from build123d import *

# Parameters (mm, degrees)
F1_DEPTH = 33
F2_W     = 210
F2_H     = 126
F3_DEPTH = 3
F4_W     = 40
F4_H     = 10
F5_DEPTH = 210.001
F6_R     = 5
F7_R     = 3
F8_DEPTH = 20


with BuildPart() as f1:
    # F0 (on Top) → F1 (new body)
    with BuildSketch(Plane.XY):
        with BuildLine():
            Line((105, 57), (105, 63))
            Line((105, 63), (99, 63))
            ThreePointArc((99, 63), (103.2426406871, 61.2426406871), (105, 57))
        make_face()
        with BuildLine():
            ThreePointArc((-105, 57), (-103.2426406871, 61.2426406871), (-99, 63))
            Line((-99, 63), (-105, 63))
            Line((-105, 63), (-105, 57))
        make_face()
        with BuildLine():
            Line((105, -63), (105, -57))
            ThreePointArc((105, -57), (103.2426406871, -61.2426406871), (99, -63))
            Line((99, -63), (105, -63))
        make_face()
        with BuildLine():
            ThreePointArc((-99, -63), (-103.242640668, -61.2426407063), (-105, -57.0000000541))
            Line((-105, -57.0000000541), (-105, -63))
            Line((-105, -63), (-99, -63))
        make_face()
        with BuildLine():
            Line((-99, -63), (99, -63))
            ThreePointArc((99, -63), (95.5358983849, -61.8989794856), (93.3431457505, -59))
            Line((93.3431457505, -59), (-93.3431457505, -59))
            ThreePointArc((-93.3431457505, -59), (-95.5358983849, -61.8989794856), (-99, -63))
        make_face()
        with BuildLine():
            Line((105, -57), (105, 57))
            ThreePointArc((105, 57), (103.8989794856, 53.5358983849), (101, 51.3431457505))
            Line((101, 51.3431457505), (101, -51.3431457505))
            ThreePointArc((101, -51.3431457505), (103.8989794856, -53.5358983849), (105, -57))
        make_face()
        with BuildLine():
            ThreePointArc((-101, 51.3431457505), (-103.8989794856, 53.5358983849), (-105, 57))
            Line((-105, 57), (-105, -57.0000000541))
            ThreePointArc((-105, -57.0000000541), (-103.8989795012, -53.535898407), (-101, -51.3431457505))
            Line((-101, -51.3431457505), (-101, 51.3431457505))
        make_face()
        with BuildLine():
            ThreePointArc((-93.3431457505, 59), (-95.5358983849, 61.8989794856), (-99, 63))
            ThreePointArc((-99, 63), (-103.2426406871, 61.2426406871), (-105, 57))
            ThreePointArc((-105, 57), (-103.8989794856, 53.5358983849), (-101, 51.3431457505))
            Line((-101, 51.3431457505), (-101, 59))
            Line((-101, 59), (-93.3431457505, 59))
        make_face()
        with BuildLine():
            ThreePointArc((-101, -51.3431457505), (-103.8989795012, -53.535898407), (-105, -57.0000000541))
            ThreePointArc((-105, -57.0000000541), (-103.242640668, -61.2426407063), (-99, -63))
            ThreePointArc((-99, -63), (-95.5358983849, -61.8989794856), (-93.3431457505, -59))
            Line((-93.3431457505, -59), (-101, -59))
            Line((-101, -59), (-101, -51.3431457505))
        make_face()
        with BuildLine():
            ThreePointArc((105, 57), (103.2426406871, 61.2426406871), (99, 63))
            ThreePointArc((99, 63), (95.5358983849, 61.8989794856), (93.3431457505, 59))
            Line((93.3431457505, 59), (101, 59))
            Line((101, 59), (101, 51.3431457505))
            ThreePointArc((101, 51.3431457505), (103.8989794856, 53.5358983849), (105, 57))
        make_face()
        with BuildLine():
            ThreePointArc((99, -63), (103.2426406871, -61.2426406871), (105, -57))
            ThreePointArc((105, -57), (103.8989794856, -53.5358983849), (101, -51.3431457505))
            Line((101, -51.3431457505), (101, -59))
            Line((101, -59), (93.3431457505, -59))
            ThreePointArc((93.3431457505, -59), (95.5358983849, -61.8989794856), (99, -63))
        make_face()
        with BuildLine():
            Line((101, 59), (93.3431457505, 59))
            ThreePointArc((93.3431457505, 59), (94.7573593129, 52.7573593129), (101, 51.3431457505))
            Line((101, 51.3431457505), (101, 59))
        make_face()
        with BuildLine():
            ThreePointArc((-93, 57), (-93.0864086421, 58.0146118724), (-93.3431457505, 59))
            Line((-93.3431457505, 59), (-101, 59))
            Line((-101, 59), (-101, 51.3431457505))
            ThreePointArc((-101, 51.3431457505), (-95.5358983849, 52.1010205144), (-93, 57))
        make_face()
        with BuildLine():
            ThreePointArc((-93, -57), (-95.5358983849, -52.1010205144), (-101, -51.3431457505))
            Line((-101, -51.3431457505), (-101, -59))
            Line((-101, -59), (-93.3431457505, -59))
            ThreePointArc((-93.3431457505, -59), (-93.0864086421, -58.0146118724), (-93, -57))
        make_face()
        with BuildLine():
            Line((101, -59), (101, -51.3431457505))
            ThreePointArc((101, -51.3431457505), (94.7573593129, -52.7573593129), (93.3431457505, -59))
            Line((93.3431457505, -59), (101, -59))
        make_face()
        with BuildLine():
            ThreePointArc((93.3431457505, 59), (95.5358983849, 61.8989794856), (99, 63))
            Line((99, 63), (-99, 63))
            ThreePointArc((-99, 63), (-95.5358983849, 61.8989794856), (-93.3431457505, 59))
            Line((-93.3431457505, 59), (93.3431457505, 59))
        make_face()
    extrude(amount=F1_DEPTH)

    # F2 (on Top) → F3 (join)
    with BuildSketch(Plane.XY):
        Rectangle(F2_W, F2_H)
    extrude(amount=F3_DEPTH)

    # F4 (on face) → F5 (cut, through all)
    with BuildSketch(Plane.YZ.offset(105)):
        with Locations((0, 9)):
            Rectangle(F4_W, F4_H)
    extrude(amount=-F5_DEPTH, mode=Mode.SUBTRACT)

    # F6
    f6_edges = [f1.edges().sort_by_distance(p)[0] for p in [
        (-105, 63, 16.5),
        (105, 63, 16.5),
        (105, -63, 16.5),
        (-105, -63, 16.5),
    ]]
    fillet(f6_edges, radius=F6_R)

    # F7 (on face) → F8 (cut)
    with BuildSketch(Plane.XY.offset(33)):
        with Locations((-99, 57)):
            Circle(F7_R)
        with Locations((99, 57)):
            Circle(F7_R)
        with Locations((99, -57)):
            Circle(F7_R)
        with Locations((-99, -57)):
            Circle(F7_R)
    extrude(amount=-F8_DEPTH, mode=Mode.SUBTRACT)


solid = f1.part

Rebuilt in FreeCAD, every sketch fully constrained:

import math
import FreeCAD as App
import Part
import Sketcher
Q = App.Units.Quantity


def edges_at(feature, points):
    """Names of the edges that pass closest to the given points."""
    edges = feature.Shape.Edges
    near = lambda p: min(range(len(edges)), key=lambda i: edges[i].distToShape(Part.Vertex(*p))[0])
    return sorted({f"Edge{near(p) + 1}" for p in points})

doc = App.newDocument("Part")
params = doc.addObject("Spreadsheet::Sheet", "Params")
for row, (alias, value) in enumerate([
    ("sketch1_radius", "6 mm"),
    ("sketch1_width", "210 mm"),
    ("sketch1_height", "126 mm"),
    ("pad1_length", "33 mm"),
    ("sketch2_width", "210 mm"),
    ("sketch2_height", "126 mm"),
    ("pad2_length", "3 mm"),
    ("sketch3_width", "40 mm"),
    ("sketch3_height", "10 mm"),
    ("fillet_radius", "5 mm"),
    ("sketch4_diameter", "6 mm"),
    ("pocket2_length", "20 mm"),
], start=1):
    params.set(f"A{row}", alias)
    params.set(f"B{row}", "=" + value)
    params.setAlias(f"B{row}", alias)

body = doc.addObject("PartDesign::Body", "Body")

# Sketch on XY plane
sketch1 = body.newObject("Sketcher::SketchObject", "Sketch")
sketch1.AttachmentSupport = (doc.getObject("XY_Plane"), [""])
sketch1.MapMode = "FlatFace"
sketch1.addGeometry([
    Part.LineSegment(App.Vector(105, 63, 0), App.Vector(-105, 63, 0)),  # 0
    Part.LineSegment(App.Vector(-105, 63, 0), App.Vector(-105, -63, 0)),  # 1
    Part.LineSegment(App.Vector(-105, -63, 0), App.Vector(105, -63, 0)),  # 2
    Part.LineSegment(App.Vector(105, -63, 0), App.Vector(105, 63, 0)),  # 3
    Part.ArcOfCircle(Part.Circle(App.Vector(99, 57, 0), App.Vector(0, 0, 1), 6), math.radians(160.528779), math.radians(289.471221)),  # 4
    Part.LineSegment(App.Vector(101, 51.343146, 0), App.Vector(101, -51.343146, 0)),  # 5
    Part.ArcOfCircle(Part.Circle(App.Vector(99, -57, 0), App.Vector(0, 0, 1), 6), math.radians(70.528779), math.radians(199.471221)),  # 6
    Part.LineSegment(App.Vector(93.343146, -59, 0), App.Vector(-93.343146, -59, 0)),  # 7
    Part.ArcOfCircle(Part.Circle(App.Vector(-99, -57, 0), App.Vector(0, 0, 1), 6), math.radians(-19.471221), math.radians(0)),  # 8
    Part.ArcOfCircle(Part.Circle(App.Vector(-99, -57, 0), App.Vector(0, 0, 1), 6), math.radians(0), math.radians(109.471221)),  # 9
    Part.LineSegment(App.Vector(-101, -51.343146, 0), App.Vector(-101, 51.343146, 0)),  # 10
    Part.ArcOfCircle(Part.Circle(App.Vector(-99, 57, 0), App.Vector(0, 0, 1), 6), math.radians(-109.471221), math.radians(0)),  # 11
    Part.ArcOfCircle(Part.Circle(App.Vector(-99, 57, 0), App.Vector(0, 0, 1), 6), math.radians(0), math.radians(19.471221)),  # 12
    Part.LineSegment(App.Vector(-93.343146, 59, 0), App.Vector(93.343146, 59, 0)),  # 13
], False)
sketch1.addConstraint([
    Sketcher.Constraint("Coincident", 0, 2, 1, 1),
    Sketcher.Constraint("Coincident", 1, 2, 2, 1),
    Sketcher.Constraint("Coincident", 2, 2, 3, 1),
    Sketcher.Constraint("Coincident", 3, 2, 0, 1),
    Sketcher.Constraint("Coincident", 4, 2, 5, 1),
    Sketcher.Constraint("Coincident", 5, 2, 6, 1),
    Sketcher.Constraint("Coincident", 6, 2, 7, 1),
    Sketcher.Constraint("Coincident", 7, 2, 8, 1),
    Sketcher.Constraint("Tangent", 8, 2, 9, 1),
    Sketcher.Constraint("Coincident", 9, 2, 10, 1),
    Sketcher.Constraint("Coincident", 10, 2, 11, 1),
    Sketcher.Constraint("Tangent", 11, 2, 12, 1),
    Sketcher.Constraint("Coincident", 12, 2, 13, 1),
    Sketcher.Constraint("Coincident", 13, 2, 4, 1),
    Sketcher.Constraint("Horizontal", 0),
    Sketcher.Constraint("Vertical", 1),
    Sketcher.Constraint("Horizontal", 2),
    Sketcher.Constraint("Vertical", 3),
    Sketcher.Constraint("Vertical", 5),
    Sketcher.Constraint("Horizontal", 7),
    Sketcher.Constraint("Vertical", 10),
    Sketcher.Constraint("Horizontal", 13),
    Sketcher.Constraint("Equal", 4, 6),
    Sketcher.Constraint("Equal", 6, 8),
    Sketcher.Constraint("Equal", 8, 9),
    Sketcher.Constraint("Equal", 9, 11),
    Sketcher.Constraint("Equal", 11, 12),
    Sketcher.Constraint("Symmetric", 4, 3, 8, 3, -1, 1),
    Sketcher.Constraint("Symmetric", 6, 3, 11, 3, -1, 1),
    Sketcher.Constraint("Symmetric", 0, 2, 2, 2, -1, 1),
    Sketcher.Constraint("Symmetric", 6, 3, 8, 3, -2),
    Sketcher.Constraint("Horizontal", 9, 3, 8, 2),
    Sketcher.Constraint("Horizontal", 5, 2, 9, 2),
    Sketcher.Constraint("Horizontal", 12, 3, 11, 2),
    Sketcher.Constraint("Vertical", 7, 2, 12, 2),
    Sketcher.Constraint("Radius", 4, Q("6 mm")),
    Sketcher.Constraint("DistanceX", 0, 2, 0, 1, Q("210 mm")),
    Sketcher.Constraint("DistanceY", 1, 2, 1, 1, Q("126 mm")),
    Sketcher.Constraint("DistanceX", -1, 1, 4, 3, Q("99 mm")),
    Sketcher.Constraint("DistanceY", -1, 1, 4, 3, Q("57 mm")),
    Sketcher.Constraint("DistanceX", -1, 1, 4, 2, Q("101 mm")),
    Sketcher.Constraint("DistanceY", 6, 2, -1, 1, Q("59 mm")),
])
sketch1.setExpression("Constraints[35]", "Params.sketch1_radius")
sketch1.setExpression("Constraints[36]", "Params.sketch1_width")
sketch1.setExpression("Constraints[37]", "Params.sketch1_height")
pad1 = body.newObject("PartDesign::Pad", "Pad")
pad1.Profile = sketch1
pad1.setExpression("Length", "Params.pad1_length")

# Sketch on XY plane
sketch2 = body.newObject("Sketcher::SketchObject", "Sketch001")
sketch2.AttachmentSupport = (doc.getObject("XY_Plane"), [""])
sketch2.MapMode = "FlatFace"
sketch2.addGeometry([
    Part.LineSegment(App.Vector(-105, 63, 0), App.Vector(-105, -63, 0)),
    Part.LineSegment(App.Vector(-105, -63, 0), App.Vector(105, -63, 0)),
    Part.LineSegment(App.Vector(105, -63, 0), App.Vector(105, 63, 0)),
    Part.LineSegment(App.Vector(105, 63, 0), App.Vector(-105, 63, 0)),
], False)
sketch2.addConstraint([
    Sketcher.Constraint("Coincident", 0, 2, 1, 1),
    Sketcher.Constraint("Coincident", 1, 2, 2, 1),
    Sketcher.Constraint("Coincident", 2, 2, 3, 1),
    Sketcher.Constraint("Coincident", 3, 2, 0, 1),
    Sketcher.Constraint("Vertical", 0),
    Sketcher.Constraint("Horizontal", 1),
    Sketcher.Constraint("Vertical", 2),
    Sketcher.Constraint("Horizontal", 3),
    Sketcher.Constraint("Symmetric", 0, 2, 2, 2, -1, 1),
    Sketcher.Constraint("DistanceX", 1, 1, 1, 2, Q("210 mm")),
    Sketcher.Constraint("DistanceY", 0, 2, 0, 1, Q("126 mm")),
])
sketch2.setExpression("Constraints[9]", "Params.sketch2_width")
sketch2.setExpression("Constraints[10]", "Params.sketch2_height")
pad2 = body.newObject("PartDesign::Pad", "Pad001")
pad2.Profile = sketch2
pad2.setExpression("Length", "Params.pad2_length")

# Sketch on YZ plane
sketch3 = body.newObject("Sketcher::SketchObject", "Sketch002")
sketch3.AttachmentSupport = (doc.getObject("YZ_Plane"), [""])
sketch3.MapMode = "FlatFace"
sketch3.AttachmentOffset = App.Placement(App.Vector(0, 0, 105), App.Rotation())
sketch3.addGeometry([
    Part.LineSegment(App.Vector(-20, 14, 0), App.Vector(-20, 4, 0)),
    Part.LineSegment(App.Vector(-20, 4, 0), App.Vector(20, 4, 0)),
    Part.LineSegment(App.Vector(20, 4, 0), App.Vector(20, 14, 0)),
    Part.LineSegment(App.Vector(20, 14, 0), App.Vector(-20, 14, 0)),
], False)
sketch3.addConstraint([
    Sketcher.Constraint("Coincident", 0, 2, 1, 1),
    Sketcher.Constraint("Coincident", 1, 2, 2, 1),
    Sketcher.Constraint("Coincident", 2, 2, 3, 1),
    Sketcher.Constraint("Coincident", 3, 2, 0, 1),
    Sketcher.Constraint("Vertical", 0),
    Sketcher.Constraint("Horizontal", 1),
    Sketcher.Constraint("Vertical", 2),
    Sketcher.Constraint("Horizontal", 3),
    Sketcher.Constraint("DistanceX", 1, 1, 1, 2, Q("40 mm")),
    Sketcher.Constraint("DistanceY", 0, 2, 0, 1, Q("10 mm")),
    Sketcher.Constraint("DistanceX", 0, 2, -1, 1, Q("20 mm")),
    Sketcher.Constraint("DistanceY", -1, 1, 0, 2, Q("4 mm")),
])
sketch3.setExpression("Constraints[8]", "Params.sketch3_width")
sketch3.setExpression("Constraints[9]", "Params.sketch3_height")
pocket1 = body.newObject("PartDesign::Pocket", "Pocket")
pocket1.Profile = sketch3
pocket1.Type = "ThroughAll"
doc.recompute()

fillet = body.newObject("PartDesign::Fillet", "Fillet")
fillet.Base = (pocket1, edges_at(pocket1, [
    (-105, 63, 16.5),
    (105, 63, 16.5),
    (105, -63, 16.5),
    (-105, -63, 16.5),
]))
fillet.setExpression("Radius", "Params.fillet_radius")

# Sketch on XY plane
sketch4 = body.newObject("Sketcher::SketchObject", "Sketch003")
sketch4.AttachmentSupport = (doc.getObject("XY_Plane"), [""])
sketch4.MapMode = "FlatFace"
sketch4.AttachmentOffset = App.Placement(App.Vector(0, 0, 33), App.Rotation())
sketch4.addGeometry([
    Part.Circle(App.Vector(-99, 57, 0), App.Vector(0, 0, 1), 3),
    Part.Circle(App.Vector(99, 57, 0), App.Vector(0, 0, 1), 3),
    Part.Circle(App.Vector(99, -57, 0), App.Vector(0, 0, 1), 3),
    Part.Circle(App.Vector(-99, -57, 0), App.Vector(0, 0, 1), 3),
], False)
sketch4.addConstraint([
    Sketcher.Constraint("Equal", 0, 1),
    Sketcher.Constraint("Equal", 1, 2),
    Sketcher.Constraint("Equal", 2, 3),
    Sketcher.Constraint("Symmetric", 0, 3, 2, 3, -1, 1),
    Sketcher.Constraint("Symmetric", 1, 3, 3, 3, -1, 1),
    Sketcher.Constraint("Symmetric", 0, 3, 1, 3, -2),
    Sketcher.Constraint("Diameter", 0, Q("6 mm")),
    Sketcher.Constraint("DistanceX", 0, 3, -1, 1, Q("99 mm")),
    Sketcher.Constraint("DistanceY", -1, 1, 0, 3, Q("57 mm")),
])
sketch4.setExpression("Constraints[6]", "Params.sketch4_diameter")
pocket2 = body.newObject("PartDesign::Pocket", "Pocket001")
pocket2.Profile = sketch4
pocket2.setExpression("Length", "Params.pocket2_length")

doc.recompute()
